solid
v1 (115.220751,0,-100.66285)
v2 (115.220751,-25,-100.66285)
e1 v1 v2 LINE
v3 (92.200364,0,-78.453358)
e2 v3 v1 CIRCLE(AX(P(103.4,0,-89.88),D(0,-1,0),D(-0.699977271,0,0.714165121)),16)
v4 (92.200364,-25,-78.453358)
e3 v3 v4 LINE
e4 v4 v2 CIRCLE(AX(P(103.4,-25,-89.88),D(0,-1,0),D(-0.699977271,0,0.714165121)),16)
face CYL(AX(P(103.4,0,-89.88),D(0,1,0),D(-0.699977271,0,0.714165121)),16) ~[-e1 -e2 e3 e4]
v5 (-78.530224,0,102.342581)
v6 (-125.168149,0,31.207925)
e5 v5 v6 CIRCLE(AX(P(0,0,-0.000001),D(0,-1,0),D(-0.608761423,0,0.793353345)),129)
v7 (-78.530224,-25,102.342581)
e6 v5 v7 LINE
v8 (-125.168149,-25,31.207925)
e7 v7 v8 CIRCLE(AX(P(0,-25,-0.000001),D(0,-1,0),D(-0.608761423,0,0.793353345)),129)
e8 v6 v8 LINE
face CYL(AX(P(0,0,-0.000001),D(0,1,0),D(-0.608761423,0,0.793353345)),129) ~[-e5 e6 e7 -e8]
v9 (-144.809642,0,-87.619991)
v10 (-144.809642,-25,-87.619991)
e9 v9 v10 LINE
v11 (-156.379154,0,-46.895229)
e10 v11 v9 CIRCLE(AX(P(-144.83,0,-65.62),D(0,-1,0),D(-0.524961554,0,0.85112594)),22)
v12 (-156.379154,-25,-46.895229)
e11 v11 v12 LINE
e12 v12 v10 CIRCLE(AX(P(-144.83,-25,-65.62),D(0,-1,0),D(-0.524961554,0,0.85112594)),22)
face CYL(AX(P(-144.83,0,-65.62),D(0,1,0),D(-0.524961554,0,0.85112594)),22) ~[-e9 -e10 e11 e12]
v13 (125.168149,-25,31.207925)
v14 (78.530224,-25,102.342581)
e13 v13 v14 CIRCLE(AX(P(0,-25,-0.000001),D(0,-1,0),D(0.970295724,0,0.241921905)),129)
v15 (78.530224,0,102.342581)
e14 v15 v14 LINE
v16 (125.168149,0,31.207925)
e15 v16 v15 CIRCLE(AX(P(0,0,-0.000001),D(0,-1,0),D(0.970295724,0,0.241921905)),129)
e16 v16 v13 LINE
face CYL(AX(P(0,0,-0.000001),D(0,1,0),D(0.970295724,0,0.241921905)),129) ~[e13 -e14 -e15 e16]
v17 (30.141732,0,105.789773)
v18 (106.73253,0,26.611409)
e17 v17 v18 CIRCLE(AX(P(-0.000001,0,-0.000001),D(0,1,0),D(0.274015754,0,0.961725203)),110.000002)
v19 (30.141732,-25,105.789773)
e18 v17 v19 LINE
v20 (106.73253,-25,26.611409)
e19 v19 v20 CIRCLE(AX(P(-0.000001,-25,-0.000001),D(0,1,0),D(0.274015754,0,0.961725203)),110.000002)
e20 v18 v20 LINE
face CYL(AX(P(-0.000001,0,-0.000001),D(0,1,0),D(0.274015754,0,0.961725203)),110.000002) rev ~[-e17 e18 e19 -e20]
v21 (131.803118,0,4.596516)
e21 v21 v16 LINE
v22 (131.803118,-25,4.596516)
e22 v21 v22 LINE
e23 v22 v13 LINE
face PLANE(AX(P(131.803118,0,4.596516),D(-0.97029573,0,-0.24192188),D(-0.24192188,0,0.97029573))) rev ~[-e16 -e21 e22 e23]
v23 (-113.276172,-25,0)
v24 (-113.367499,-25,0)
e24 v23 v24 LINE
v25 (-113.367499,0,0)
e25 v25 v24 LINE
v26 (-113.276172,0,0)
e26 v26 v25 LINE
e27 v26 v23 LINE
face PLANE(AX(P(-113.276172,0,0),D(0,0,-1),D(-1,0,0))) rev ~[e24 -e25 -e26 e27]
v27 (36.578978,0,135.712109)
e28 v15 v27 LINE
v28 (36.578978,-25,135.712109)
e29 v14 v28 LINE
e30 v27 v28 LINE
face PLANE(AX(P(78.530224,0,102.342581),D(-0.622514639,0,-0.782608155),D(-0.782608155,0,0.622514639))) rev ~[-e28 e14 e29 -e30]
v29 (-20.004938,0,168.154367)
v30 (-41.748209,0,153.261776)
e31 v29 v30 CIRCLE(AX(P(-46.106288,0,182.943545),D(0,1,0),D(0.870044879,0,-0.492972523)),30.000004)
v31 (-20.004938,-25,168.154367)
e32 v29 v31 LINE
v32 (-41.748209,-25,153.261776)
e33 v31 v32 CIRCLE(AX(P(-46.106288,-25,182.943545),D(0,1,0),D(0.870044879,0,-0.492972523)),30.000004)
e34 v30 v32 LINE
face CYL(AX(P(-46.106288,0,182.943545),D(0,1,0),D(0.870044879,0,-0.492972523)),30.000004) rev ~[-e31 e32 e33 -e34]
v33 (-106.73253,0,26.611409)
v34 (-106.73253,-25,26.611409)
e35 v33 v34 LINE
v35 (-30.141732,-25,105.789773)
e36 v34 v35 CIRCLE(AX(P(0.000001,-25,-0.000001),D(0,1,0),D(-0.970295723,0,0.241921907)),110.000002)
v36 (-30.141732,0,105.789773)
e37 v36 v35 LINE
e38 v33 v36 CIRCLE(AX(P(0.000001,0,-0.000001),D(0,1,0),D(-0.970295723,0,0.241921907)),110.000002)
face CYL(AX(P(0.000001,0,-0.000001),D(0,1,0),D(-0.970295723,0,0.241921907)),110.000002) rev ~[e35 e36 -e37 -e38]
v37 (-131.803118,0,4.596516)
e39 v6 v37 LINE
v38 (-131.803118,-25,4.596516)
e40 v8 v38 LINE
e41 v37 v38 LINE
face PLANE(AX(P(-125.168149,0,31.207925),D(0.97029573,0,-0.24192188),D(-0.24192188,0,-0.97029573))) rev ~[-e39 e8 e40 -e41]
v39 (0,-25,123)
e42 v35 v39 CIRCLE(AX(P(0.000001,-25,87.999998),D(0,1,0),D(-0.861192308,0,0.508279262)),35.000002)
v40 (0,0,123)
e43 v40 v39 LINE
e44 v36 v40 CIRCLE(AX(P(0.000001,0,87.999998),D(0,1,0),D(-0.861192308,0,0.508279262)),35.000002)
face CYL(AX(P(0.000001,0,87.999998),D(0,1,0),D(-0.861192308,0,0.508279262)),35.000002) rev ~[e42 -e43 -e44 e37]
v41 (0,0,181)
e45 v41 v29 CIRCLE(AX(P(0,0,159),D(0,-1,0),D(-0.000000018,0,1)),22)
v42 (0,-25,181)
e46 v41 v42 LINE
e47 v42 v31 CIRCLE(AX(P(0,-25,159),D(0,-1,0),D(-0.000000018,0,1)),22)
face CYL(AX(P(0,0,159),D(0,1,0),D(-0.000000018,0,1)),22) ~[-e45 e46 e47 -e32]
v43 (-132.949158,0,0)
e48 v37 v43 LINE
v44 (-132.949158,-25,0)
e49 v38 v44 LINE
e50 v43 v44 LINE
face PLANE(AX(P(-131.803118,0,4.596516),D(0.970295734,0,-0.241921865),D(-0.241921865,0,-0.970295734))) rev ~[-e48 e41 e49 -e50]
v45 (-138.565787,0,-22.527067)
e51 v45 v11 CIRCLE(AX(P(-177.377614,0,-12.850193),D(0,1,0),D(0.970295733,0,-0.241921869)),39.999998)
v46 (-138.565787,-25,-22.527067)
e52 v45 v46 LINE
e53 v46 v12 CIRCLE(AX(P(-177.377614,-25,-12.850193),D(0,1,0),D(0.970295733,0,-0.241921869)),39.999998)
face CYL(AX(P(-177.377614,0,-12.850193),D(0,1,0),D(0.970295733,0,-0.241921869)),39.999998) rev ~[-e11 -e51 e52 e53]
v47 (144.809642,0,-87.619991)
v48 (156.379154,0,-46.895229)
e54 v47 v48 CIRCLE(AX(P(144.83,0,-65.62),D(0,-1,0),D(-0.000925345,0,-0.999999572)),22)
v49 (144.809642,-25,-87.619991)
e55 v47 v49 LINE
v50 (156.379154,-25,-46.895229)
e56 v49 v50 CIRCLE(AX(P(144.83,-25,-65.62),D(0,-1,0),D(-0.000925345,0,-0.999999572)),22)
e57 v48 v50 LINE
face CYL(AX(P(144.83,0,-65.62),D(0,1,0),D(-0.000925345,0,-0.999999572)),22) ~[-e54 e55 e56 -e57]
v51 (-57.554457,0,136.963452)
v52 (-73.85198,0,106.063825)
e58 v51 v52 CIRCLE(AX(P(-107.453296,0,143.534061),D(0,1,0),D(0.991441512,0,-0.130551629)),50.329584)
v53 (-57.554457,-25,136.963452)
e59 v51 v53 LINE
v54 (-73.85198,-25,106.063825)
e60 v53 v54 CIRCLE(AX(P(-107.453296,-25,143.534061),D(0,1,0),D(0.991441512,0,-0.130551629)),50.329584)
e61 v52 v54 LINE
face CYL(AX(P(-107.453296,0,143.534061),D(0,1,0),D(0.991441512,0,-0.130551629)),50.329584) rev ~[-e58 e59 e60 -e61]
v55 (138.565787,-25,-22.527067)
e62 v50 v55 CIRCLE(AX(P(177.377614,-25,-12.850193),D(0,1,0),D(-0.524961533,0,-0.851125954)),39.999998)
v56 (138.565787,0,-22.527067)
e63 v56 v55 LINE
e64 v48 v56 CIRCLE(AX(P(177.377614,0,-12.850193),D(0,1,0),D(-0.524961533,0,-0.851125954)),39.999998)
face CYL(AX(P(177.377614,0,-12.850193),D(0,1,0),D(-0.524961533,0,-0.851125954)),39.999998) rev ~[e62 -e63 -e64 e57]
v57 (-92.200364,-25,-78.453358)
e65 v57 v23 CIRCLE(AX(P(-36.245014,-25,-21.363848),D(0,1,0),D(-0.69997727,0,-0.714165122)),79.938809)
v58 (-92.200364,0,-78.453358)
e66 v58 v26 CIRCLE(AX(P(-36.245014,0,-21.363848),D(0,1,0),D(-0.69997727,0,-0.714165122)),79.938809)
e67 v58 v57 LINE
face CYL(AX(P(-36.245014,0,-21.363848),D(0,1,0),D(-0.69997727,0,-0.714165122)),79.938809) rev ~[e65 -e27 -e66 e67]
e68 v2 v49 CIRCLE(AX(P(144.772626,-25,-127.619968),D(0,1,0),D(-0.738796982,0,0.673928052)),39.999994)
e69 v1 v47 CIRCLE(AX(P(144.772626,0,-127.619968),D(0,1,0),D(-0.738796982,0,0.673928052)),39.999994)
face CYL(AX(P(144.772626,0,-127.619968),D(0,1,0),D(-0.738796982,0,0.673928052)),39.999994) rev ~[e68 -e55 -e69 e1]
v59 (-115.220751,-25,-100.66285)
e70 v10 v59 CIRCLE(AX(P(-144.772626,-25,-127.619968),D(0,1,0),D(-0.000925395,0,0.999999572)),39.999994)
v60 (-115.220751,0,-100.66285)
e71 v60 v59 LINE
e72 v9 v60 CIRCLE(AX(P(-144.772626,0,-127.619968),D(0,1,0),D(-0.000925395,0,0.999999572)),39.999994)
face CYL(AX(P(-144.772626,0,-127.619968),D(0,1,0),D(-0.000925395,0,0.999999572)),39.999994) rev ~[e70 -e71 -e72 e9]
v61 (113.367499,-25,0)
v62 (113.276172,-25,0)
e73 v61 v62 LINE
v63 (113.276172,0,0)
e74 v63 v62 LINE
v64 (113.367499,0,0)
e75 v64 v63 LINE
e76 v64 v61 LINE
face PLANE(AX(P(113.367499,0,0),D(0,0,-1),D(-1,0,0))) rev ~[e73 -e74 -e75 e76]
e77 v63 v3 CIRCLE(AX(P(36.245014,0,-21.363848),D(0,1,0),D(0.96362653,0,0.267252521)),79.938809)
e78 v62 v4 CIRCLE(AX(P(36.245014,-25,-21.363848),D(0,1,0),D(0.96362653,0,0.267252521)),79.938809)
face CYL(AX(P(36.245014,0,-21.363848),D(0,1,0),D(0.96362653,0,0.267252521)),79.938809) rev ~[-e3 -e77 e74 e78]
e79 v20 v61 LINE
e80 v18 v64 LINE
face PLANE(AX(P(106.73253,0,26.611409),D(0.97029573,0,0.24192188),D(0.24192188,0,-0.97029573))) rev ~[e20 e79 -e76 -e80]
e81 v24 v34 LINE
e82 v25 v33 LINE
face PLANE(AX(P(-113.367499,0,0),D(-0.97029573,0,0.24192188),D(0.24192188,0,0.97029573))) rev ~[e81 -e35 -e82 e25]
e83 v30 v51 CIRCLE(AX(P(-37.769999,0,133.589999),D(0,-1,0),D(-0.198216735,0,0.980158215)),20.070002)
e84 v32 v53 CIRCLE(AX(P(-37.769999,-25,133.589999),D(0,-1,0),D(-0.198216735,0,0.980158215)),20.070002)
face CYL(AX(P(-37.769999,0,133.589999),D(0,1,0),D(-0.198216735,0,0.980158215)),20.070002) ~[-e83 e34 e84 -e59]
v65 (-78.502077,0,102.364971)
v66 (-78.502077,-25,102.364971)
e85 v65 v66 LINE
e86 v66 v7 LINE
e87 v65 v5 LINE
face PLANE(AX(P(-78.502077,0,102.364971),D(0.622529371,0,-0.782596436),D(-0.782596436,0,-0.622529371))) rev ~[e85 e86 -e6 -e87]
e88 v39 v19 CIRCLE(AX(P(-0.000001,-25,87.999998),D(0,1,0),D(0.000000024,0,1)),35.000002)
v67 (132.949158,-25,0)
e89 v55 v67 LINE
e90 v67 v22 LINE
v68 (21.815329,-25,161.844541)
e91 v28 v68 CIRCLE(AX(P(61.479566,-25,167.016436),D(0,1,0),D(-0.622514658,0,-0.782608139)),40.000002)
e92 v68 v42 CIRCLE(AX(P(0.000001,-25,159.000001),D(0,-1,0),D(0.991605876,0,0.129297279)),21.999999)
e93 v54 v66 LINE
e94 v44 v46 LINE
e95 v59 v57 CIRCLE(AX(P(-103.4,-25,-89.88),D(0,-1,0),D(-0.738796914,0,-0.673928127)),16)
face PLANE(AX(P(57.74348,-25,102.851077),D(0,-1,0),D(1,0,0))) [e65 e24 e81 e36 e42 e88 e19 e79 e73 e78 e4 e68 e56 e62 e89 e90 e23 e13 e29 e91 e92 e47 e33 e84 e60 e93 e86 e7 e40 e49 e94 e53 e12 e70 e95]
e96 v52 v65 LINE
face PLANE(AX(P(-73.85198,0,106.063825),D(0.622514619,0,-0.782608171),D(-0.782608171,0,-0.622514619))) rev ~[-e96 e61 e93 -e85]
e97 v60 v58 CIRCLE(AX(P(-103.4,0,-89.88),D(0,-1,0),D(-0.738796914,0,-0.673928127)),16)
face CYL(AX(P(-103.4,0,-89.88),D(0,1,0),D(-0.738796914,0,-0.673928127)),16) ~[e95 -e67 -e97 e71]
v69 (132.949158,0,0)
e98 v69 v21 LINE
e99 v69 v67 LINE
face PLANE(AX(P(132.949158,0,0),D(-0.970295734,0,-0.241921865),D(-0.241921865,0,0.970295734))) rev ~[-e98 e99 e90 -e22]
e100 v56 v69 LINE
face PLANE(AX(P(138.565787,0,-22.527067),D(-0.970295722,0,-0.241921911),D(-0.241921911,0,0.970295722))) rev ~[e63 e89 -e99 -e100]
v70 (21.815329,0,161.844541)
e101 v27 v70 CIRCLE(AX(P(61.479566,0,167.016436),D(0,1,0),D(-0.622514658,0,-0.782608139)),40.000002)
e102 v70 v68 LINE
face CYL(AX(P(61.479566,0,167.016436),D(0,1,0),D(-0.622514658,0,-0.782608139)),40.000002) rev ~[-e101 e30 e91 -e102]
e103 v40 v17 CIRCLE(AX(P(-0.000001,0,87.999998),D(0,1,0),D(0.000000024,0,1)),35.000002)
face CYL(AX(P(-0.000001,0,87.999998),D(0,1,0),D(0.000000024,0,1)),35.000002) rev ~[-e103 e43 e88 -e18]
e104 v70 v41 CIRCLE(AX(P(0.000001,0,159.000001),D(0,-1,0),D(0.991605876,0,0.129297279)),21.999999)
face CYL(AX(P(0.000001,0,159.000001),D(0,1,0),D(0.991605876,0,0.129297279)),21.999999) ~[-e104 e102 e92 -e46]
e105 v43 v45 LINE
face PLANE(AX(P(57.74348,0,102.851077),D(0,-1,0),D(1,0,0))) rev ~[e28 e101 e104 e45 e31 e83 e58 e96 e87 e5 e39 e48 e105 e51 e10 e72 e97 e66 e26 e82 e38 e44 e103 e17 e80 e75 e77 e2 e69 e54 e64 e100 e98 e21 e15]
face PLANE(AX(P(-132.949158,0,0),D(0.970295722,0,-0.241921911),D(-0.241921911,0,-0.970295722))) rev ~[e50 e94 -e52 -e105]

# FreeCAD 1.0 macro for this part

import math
import FreeCAD as App
import Part
import Sketcher
from FreeCAD import Vector
Q = App.Units.Quantity

doc = App.newDocument("Part")
body = doc.addObject("PartDesign::Body", "Body")

sketch1 = body.newObject("Sketcher::SketchObject", "Sketch")
sketch1.AttachmentSupport = (doc.getObject("XZ_Plane"), [""])
sketch1.MapMode = "FlatFace"
sketch1.addGeometry(Part.ArcOfCircle(Part.Circle(Vector(0, 88, 0), Vector(0, 0, 1), 35), math.radians(31), math.radians(90)), False)
sketch1.addGeometry(Part.ArcOfCircle(Part.Circle(Vector(0, 0, 0), Vector(0, 0, 1), 110), math.radians(14), math.radians(74)), False)
sketch1.addGeometry(Part.LineSegment(Vector(106.733, 26.611, 0), Vector(113.367, 0, 0)), False)
sketch1.addGeometry(Part.LineSegment(Vector(113.367, 0, 0), Vector(113.276, 0, 0)), False)
sketch1.addGeometry(Part.ArcOfCircle(Part.Circle(Vector(36.245, -21.364, 0), Vector(0, 0, 1), 79.939), math.radians(-46), math.radians(16)), False)
sketch1.addGeometry(Part.ArcOfCircle(Part.Circle(Vector(103.4, -89.88, 0), Vector(0, 0, 1), 16), math.radians(134), math.radians(318)), False)
sketch1.addGeometry(Part.ArcOfCircle(Part.Circle(Vector(144.773, -127.62, 0), Vector(0, 0, 1), 40), math.radians(90), math.radians(138)), False)
sketch1.addGeometry(Part.ArcOfCircle(Part.Circle(Vector(144.83, -65.62, 0), Vector(0, 0, 1), 22), math.radians(-90), math.radians(58)), False)
sketch1.addGeometry(Part.ArcOfCircle(Part.Circle(Vector(177.378, -12.85, 0), Vector(0, 0, 1), 40), math.radians(-166), math.radians(-122)), False)
sketch1.addGeometry(Part.LineSegment(Vector(138.566, -22.527, 0), Vector(132.949, 0, 0)), False)
sketch1.addGeometry(Part.LineSegment(Vector(132.949, 0, 0), Vector(131.803, 4.597, 0)), False)
sketch1.addGeometry(Part.LineSegment(Vector(131.803, 4.597, 0), Vector(125.168, 31.208, 0)), False)
sketch1.addGeometry(Part.ArcOfCircle(Part.Circle(Vector(0, 0, 0), Vector(0, 0, 1), 129), math.radians(14), math.radians(53)), False)
sketch1.addGeometry(Part.LineSegment(Vector(78.53, 102.343, 0), Vector(36.579, 135.712, 0)), False)
sketch1.addGeometry(Part.ArcOfCircle(Part.Circle(Vector(61.48, 167.016, 0), Vector(0, 0, 1), 40), math.radians(-173), math.radians(-129)), False)
sketch1.addGeometry(Part.ArcOfCircle(Part.Circle(Vector(0, 159, 0), Vector(0, 0, 1), 22), math.radians(7), math.radians(90)), False)
sketch1.addGeometry(Part.ArcOfCircle(Part.Circle(Vector(0, 159, 0), Vector(0, 0, 1), 22), math.radians(90), math.radians(155)), False)
sketch1.addGeometry(Part.ArcOfCircle(Part.Circle(Vector(-46.106, 182.944, 0), Vector(0, 0, 1), 30), math.radians(-82), math.radians(-30)), False)
sketch1.addGeometry(Part.ArcOfCircle(Part.Circle(Vector(-37.77, 133.59, 0), Vector(0, 0, 1), 20.07), math.radians(101), math.radians(170)), False)
sketch1.addGeometry(Part.ArcOfCircle(Part.Circle(Vector(-107.453, 143.534, 0), Vector(0, 0, 1), 50.33), math.radians(-48), math.radians(-8)), False)
sketch1.addGeometry(Part.LineSegment(Vector(-73.852, 106.064, 0), Vector(-78.502, 102.365, 0)), False)
sketch1.addGeometry(Part.LineSegment(Vector(-78.502, 102.365, 0), Vector(-78.53, 102.343, 0)), False)
sketch1.addGeometry(Part.ArcOfCircle(Part.Circle(Vector(0, 0, 0), Vector(0, 0, 1), 129), math.radians(127), math.radians(166)), False)
sketch1.addGeometry(Part.LineSegment(Vector(-125.168, 31.208, 0), Vector(-131.803, 4.597, 0)), False)
sketch1.addGeometry(Part.LineSegment(Vector(-131.803, 4.597, 0), Vector(-132.949, 0, 0)), False)
sketch1.addGeometry(Part.LineSegment(Vector(-132.949, 0, 0), Vector(-138.566, -22.527, 0)), False)
sketch1.addGeometry(Part.ArcOfCircle(Part.Circle(Vector(-177.378, -12.85, 0), Vector(0, 0, 1), 40), math.radians(-58), math.radians(-14)), False)
sketch1.addGeometry(Part.ArcOfCircle(Part.Circle(Vector(-144.83, -65.62, 0), Vector(0, 0, 1), 22), math.radians(122), math.radians(270)), False)
sketch1.addGeometry(Part.ArcOfCircle(Part.Circle(Vector(-144.773, -127.62, 0), Vector(0, 0, 1), 40), math.radians(42), math.radians(90)), False)
sketch1.addGeometry(Part.ArcOfCircle(Part.Circle(Vector(-103.4, -89.88, 0), Vector(0, 0, 1), 16), math.radians(-138), math.radians(46)), False)
sketch1.addGeometry(Part.ArcOfCircle(Part.Circle(Vector(-36.245, -21.364, 0), Vector(0, 0, 1), 79.939), math.radians(164), math.radians(226)), False)
sketch1.addGeometry(Part.LineSegment(Vector(-113.276, 0, 0), Vector(-113.367, 0, 0)), False)
sketch1.addGeometry(Part.LineSegment(Vector(-113.367, 0, 0), Vector(-106.733, 26.611, 0)), False)
sketch1.addGeometry(Part.ArcOfCircle(Part.Circle(Vector(0, 0, 0), Vector(0, 0, 1), 110), math.radians(106), math.radians(166)), False)
sketch1.addGeometry(Part.ArcOfCircle(Part.Circle(Vector(0, 88, 0), Vector(0, 0, 1), 35), math.radians(90), math.radians(149)), False)
sketch1.addConstraint(Sketcher.Constraint("Coincident", 0, 1, 1, 2))
sketch1.addConstraint(Sketcher.Constraint("Tangent", 1, 1, 2, 1))
sketch1.addConstraint(Sketcher.Constraint("Coincident", 2, 2, 3, 1))
sketch1.addConstraint(Sketcher.Constraint("Coincident", 3, 2, 4, 2))
sketch1.addConstraint(Sketcher.Constraint("Tangent", 4, 1, 5, 1))
sketch1.addConstraint(Sketcher.Constraint("Tangent", 5, 2, 6, 2))
sketch1.addConstraint(Sketcher.Constraint("Tangent", 6, 1, 7, 1))
sketch1.addConstraint(Sketcher.Constraint("Tangent", 7, 2, 8, 2))
sketch1.addConstraint(Sketcher.Constraint("Tangent", 8, 1, 9, 1))
sketch1.addConstraint(Sketcher.Constraint("Coincident", 9, 2, 10, 1))
sketch1.addConstraint(Sketcher.Constraint("Coincident", 10, 2, 11, 1))
sketch1.addConstraint(Sketcher.Constraint("Tangent", 11, 2, 12, 1))
sketch1.addConstraint(Sketcher.Constraint("Coincident", 12, 2, 13, 1))
sketch1.addConstraint(Sketcher.Constraint("Tangent", 13, 2, 14, 2))
sketch1.addConstraint(Sketcher.Constraint("Tangent", 14, 1, 15, 1))
sketch1.addConstraint(Sketcher.Constraint("Tangent", 15, 2, 16, 1))
sketch1.addConstraint(Sketcher.Constraint("Coincident", 16, 2, 17, 2))
sketch1.addConstraint(Sketcher.Constraint("Coincident", 17, 1, 18, 1))
sketch1.addConstraint(Sketcher.Constraint("Coincident", 18, 2, 19, 2))
sketch1.addConstraint(Sketcher.Constraint("Coincident", 19, 1, 20, 1))
sketch1.addConstraint(Sketcher.Constraint("Coincident", 20, 2, 21, 1))
sketch1.addConstraint(Sketcher.Constraint("Coincident", 21, 2, 22, 1))
sketch1.addConstraint(Sketcher.Constraint("Tangent", 22, 2, 23, 1))
sketch1.addConstraint(Sketcher.Constraint("Coincident", 23, 2, 24, 1))
sketch1.addConstraint(Sketcher.Constraint("Coincident", 24, 2, 25, 1))
sketch1.addConstraint(Sketcher.Constraint("Tangent", 25, 2, 26, 2))
sketch1.addConstraint(Sketcher.Constraint("Tangent", 26, 1, 27, 1))
sketch1.addConstraint(Sketcher.Constraint("Tangent", 27, 2, 28, 2))
sketch1.addConstraint(Sketcher.Constraint("Tangent", 28, 1, 29, 1))
sketch1.addConstraint(Sketcher.Constraint("Tangent", 29, 2, 30, 2))
sketch1.addConstraint(Sketcher.Constraint("Coincident", 30, 1, 31, 1))
sketch1.addConstraint(Sketcher.Constraint("Coincident", 31, 2, 32, 1))
sketch1.addConstraint(Sketcher.Constraint("Tangent", 32, 2, 33, 2))
sketch1.addConstraint(Sketcher.Constraint("Coincident", 33, 1, 34, 2))
sketch1.addConstraint(Sketcher.Constraint("Tangent", 34, 1, 0, 2))
sketch1.addConstraint(Sketcher.Constraint("Horizontal", 3))
sketch1.addConstraint(Sketcher.Constraint("Horizontal", 31))
sketch1.addConstraint(Sketcher.Constraint("Coincident", 1, 3, -1, 1))
sketch1.addConstraint(Sketcher.Constraint("Coincident", 12, 3, -1, 1))
sketch1.addConstraint(Sketcher.Constraint("Coincident", 22, 3, -1, 1))
sketch1.addConstraint(Sketcher.Constraint("Coincident", 33, 3, -1, 1))
sketch1.addConstraint(Sketcher.Constraint("Equal", 7, 15))
sketch1.addConstraint(Sketcher.Constraint("Equal", 15, 16))
sketch1.addConstraint(Sketcher.Constraint("Equal", 12, 22))
sketch1.addConstraint(Sketcher.Constraint("Equal", 8, 26))
sketch1.addConstraint(Sketcher.Constraint("Equal", 16, 27))
sketch1.addConstraint(Sketcher.Constraint("Equal", 6, 28))
sketch1.addConstraint(Sketcher.Constraint("Equal", 5, 29))
sketch1.addConstraint(Sketcher.Constraint("Equal", 4, 30))
sketch1.addConstraint(Sketcher.Constraint("Equal", 1, 33))
sketch1.addConstraint(Sketcher.Constraint("Equal", 0, 34))
sketch1.addConstraint(Sketcher.Constraint("Symmetric", 9, 2, 24, 2, -1, 1))
sketch1.addConstraint(Sketcher.Constraint("Symmetric", 3, 2, 30, 1, -1, 1))
sketch1.addConstraint(Sketcher.Constraint("Symmetric", 8, 3, 26, 3, -2))
sketch1.addConstraint(Sketcher.Constraint("Symmetric", 6, 3, 28, 3, -2))
sketch1.addConstraint(Sketcher.Constraint("Symmetric", 4, 3, 30, 3, -2))
sketch1.addConstraint(Sketcher.Constraint("Symmetric", 10, 2, 23, 2, -2))
sketch1.addConstraint(Sketcher.Constraint("PointOnObject", 0, 3, -2))
sketch1.addConstraint(Sketcher.Constraint("PointOnObject", 15, 3, -2))
sketch1.addConstraint(Sketcher.Constraint("PointOnObject", 9, 2, -1))
sketch1.addConstraint(Sketcher.Constraint("PointOnObject", 15, 2, -2))
sketch1.addConstraint(Sketcher.Constraint("PointOnObject", 34, 1, -2))
sketch1.addConstraint(Sketcher.Constraint("Parallel", 2, 9))
sketch1.addConstraint(Sketcher.Constraint("Parallel", 9, 10))
sketch1.addConstraint(Sketcher.Constraint("Parallel", 10, 11))
sketch1.addConstraint(Sketcher.Constraint("Parallel", 25, 32))
sketch1.addConstraint(Sketcher.Constraint("Horizontal", 12, 2, 21, 2))
sketch1.addConstraint(Sketcher.Constraint("Equal", 2, 11))
sketch1.addConstraint(Sketcher.Constraint("Radius", 1, 110.000002))
sketch1.addConstraint(Sketcher.Constraint("Radius", 5, 16.0))
sketch1.addConstraint(Sketcher.Constraint("Radius", 7, 22.0))
sketch1.addConstraint(Sketcher.Constraint("Radius", 12, 129.0))
sketch1.addConstraint(Sketcher.Constraint("Angle", 2, Q("-76.000001 deg")))
sketch1.addConstraint(Sketcher.Constraint("Radius", 18, 20.070002))
sketch1.addConstraint(Sketcher.Constraint("DistanceY", -1, 1, 15, 3, 159.000001))
sketch1.addConstraint(Sketcher.Constraint("DistanceY", -1, 1, 34, 1, 123.0))
sketch1.addConstraint(Sketcher.Constraint("Angle", 13, Q("141.5 deg")))
sketch1.addConstraint(Sketcher.Constraint("Angle", 20, Q("-141.500001 deg")))
sketch1.addConstraint(Sketcher.Constraint("DistanceY", 1, 3, 0, 3, 87.999999))
sketch1.addConstraint(Sketcher.Constraint("DistanceX", -1, 1, 5, 3, 103.4))
sketch1.addConstraint(Sketcher.Constraint("DistanceY", 5, 3, -1, 1, 89.88))
sketch1.addConstraint(Sketcher.Constraint("DistanceX", -1, 1, 7, 3, 144.83))
sketch1.addConstraint(Sketcher.Constraint("DistanceY", 7, 3, -1, 1, 65.62))
sketch1.addConstraint(Sketcher.Constraint("DistanceX", 18, 3, -1, 1, 37.769999))
sketch1.addConstraint(Sketcher.Constraint("DistanceY", -1, 1, 18, 3, 133.589999))
sketch1.addConstraint(Sketcher.Constraint("Radius", 4, 79.938809))
sketch1.addConstraint(Sketcher.Constraint("Radius", 6, 39.999994))
sketch1.addConstraint(Sketcher.Constraint("Radius", 8, 39.999998))
sketch1.addConstraint(Sketcher.Constraint("Radius", 14, 40.000002))
sketch1.addConstraint(Sketcher.Constraint("Radius", 17, 30.000004))
sketch1.addConstraint(Sketcher.Constraint("Radius", 19, 50.329584))
sketch1.addConstraint(Sketcher.Constraint("DistanceX", 4, 3, 8, 3, 141.1326))
sketch1.addConstraint(Sketcher.Constraint("DistanceY", 22, 2, 19, 1, 74.8559))
sketch1.addConstraint(Sketcher.Constraint("DistanceY", -1, 1, 19, 3, 143.534061))
sketch1.addConstraint(Sketcher.Constraint("DistanceY", -1, 1, 12, 2, 102.342581))
sketch1.addConstraint(Sketcher.Constraint("DistanceX", 17, 1, -1, 1, 41.748209))
sketch1.addConstraint(Sketcher.Constraint("DistanceY", -1, 1, 18, 2, 136.963452))
sketch1.addConstraint(Sketcher.Constraint("DistanceY", -1, 1, 20, 2, 102.364971))
sketch1.addConstraint(Sketcher.Constraint("DistanceX", 17, 3, 15, 3, 46.106289))
pad1 = body.newObject("PartDesign::Pad", "Pad")
pad1.Profile = sketch1
pad1.Length = 25

doc.recompute()
